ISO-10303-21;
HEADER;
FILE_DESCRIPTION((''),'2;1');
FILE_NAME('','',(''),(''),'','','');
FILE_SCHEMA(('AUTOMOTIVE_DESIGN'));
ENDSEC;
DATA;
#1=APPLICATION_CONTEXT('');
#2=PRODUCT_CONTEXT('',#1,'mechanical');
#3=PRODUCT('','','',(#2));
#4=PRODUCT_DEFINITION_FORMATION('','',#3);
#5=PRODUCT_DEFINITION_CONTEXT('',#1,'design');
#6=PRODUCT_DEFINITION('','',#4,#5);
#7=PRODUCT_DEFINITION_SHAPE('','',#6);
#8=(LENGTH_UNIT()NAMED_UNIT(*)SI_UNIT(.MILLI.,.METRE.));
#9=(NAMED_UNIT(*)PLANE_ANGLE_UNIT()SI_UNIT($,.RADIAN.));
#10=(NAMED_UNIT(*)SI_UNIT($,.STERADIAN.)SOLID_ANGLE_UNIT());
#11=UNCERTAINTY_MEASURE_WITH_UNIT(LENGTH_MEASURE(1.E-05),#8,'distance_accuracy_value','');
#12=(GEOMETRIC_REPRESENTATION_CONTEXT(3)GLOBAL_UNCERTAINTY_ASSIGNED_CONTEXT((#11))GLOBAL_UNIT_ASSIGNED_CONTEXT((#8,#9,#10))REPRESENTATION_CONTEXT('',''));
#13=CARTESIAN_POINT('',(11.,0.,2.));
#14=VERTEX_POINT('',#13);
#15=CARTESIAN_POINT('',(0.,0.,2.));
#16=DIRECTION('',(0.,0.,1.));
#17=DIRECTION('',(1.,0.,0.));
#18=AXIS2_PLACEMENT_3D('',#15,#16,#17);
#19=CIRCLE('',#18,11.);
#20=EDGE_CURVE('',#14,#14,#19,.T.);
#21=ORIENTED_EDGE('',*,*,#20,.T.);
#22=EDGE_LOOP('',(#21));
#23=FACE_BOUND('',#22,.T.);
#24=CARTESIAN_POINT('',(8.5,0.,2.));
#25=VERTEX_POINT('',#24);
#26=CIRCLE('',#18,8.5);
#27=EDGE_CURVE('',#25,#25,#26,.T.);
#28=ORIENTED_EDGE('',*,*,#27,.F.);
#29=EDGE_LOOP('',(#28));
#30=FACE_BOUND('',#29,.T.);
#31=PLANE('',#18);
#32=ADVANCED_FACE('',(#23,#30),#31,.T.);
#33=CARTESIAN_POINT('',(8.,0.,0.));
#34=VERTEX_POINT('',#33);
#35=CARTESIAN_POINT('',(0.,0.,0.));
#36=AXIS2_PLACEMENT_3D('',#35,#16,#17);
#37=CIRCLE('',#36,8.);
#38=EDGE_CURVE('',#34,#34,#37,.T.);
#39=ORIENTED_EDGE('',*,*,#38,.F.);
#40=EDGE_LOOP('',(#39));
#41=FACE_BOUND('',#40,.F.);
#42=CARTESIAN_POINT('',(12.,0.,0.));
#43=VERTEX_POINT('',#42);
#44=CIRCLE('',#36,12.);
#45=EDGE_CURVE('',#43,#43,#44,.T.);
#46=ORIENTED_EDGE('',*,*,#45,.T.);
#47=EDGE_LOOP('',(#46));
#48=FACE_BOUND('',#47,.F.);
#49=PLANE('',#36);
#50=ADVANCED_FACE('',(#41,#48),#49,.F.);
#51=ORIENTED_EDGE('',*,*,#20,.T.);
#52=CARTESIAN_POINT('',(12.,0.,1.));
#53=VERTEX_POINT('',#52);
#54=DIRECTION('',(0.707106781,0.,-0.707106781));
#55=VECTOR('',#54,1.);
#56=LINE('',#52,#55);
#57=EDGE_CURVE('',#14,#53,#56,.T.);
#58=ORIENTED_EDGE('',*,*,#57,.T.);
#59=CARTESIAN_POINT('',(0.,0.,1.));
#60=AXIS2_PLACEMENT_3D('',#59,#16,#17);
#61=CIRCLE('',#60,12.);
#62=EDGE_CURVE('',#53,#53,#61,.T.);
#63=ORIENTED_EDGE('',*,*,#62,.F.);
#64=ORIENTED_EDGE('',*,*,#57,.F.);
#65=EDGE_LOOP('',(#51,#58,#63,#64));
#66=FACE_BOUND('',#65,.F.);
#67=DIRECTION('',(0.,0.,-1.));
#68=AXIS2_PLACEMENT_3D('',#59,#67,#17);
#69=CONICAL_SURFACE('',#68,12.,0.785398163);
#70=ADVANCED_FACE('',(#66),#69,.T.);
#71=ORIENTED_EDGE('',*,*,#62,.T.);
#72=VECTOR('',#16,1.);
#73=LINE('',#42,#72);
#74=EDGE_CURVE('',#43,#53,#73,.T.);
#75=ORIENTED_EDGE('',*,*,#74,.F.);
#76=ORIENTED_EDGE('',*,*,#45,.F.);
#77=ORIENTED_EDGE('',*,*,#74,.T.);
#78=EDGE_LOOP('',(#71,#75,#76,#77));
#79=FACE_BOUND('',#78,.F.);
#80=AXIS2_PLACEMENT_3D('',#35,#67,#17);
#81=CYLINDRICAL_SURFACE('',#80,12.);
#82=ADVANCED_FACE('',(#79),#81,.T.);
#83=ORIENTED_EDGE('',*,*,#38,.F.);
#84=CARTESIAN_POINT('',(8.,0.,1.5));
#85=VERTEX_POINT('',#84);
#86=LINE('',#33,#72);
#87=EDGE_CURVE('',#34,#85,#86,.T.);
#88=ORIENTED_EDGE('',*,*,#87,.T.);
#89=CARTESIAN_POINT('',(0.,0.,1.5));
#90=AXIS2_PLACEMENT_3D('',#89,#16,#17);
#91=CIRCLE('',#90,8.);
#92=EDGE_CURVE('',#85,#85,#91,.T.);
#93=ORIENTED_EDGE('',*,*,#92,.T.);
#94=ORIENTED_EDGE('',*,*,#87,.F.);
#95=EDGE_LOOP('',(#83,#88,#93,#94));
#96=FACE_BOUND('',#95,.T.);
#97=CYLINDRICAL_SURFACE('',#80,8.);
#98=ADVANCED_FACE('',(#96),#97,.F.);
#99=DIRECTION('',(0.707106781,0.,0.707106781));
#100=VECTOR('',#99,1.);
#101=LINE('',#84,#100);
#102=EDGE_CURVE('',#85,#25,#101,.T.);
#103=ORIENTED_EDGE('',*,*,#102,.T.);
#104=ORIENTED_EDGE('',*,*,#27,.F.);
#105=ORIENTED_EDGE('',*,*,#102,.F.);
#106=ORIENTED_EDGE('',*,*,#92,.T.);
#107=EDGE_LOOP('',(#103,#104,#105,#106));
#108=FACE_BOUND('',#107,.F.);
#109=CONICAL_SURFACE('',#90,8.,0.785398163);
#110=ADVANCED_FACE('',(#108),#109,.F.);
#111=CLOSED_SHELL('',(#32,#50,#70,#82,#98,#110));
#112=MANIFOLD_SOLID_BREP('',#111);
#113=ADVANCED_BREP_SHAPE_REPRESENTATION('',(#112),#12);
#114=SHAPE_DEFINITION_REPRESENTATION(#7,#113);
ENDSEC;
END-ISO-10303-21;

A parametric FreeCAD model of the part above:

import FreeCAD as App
import Part
import Sketcher


def edges_at(feature, points):
    """Names of the edges that pass closest to the given points."""
    edges = feature.Shape.Edges
    near = lambda p: min(range(len(edges)), key=lambda i: edges[i].distToShape(Part.Vertex(*p))[0])
    return sorted({f"Edge{near(p) + 1}" for p in points})

doc = App.newDocument("Part")
body = doc.addObject("PartDesign::Body", "Body")

sketch1 = body.newObject("Sketcher::SketchObject", "Sketch")
sketch1.AttachmentSupport = (doc.getObject("XY_Plane"), [""])
sketch1.MapMode = "FlatFace"
sketch1.addGeometry([
    Part.Circle(App.Vector(0, 0, 0), App.Vector(0, 0, 1), 12),
    Part.Circle(App.Vector(0, 0, 0), App.Vector(0, 0, 1), 8),
], False)
sketch1.addConstraint([
    Sketcher.Constraint("Coincident", 0, 3, -1, 1),
    Sketcher.Constraint("Coincident", 1, 3, -1, 1),
    Sketcher.Constraint("Diameter", 0, 24.0),
    Sketcher.Constraint("Diameter", 1, 16.0),
])
pad1 = body.newObject("PartDesign::Pad", "Pad")
pad1.Profile = sketch1
pad1.Length = 2
doc.recompute()

chamfer = body.newObject("PartDesign::Chamfer", "Chamfer")
chamfer.Base = (pad1, edges_at(pad1, [(-8, 0, 2)]))
chamfer.Size = 0.5
doc.recompute()

chamfer2 = body.newObject("PartDesign::Chamfer", "Chamfer001")
chamfer2.Base = (chamfer, edges_at(chamfer, [(-12, 0, 2)]))
chamfer2.Size = 1

doc.recompute()
